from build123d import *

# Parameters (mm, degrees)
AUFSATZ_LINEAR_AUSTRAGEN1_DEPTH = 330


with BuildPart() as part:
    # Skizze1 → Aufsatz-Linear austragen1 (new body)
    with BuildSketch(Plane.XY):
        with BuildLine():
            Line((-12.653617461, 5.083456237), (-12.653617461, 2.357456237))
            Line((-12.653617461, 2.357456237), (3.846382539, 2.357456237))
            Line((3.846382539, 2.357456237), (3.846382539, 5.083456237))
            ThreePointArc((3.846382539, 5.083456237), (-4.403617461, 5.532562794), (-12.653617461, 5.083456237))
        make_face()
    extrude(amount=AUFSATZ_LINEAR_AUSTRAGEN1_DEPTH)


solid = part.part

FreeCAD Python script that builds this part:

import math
import FreeCAD as App
import Part
import Sketcher

V = App.Vector

doc = App.newDocument("Part")
body = doc.addObject("PartDesign::Body", "Body")

sketch1 = body.newObject("Sketcher::SketchObject", "Sketch")
sketch1.AttachmentSupport = (doc.getObject("XY_Plane"), [""])
sketch1.MapMode = "FlatFace"
sketch1.addGeometry(Part.LineSegment(V(-12.653617, 5.083456, 0), V(-12.653617, 2.357456, 0)), False)
sketch1.addGeometry(Part.LineSegment(V(-12.653617, 2.357456, 0), V(3.846383, 2.357456, 0)), False)
sketch1.addGeometry(Part.LineSegment(V(3.846383, 2.357456, 0), V(3.846383, 5.083456, 0)), False)
sketch1.addGeometry(Part.ArcOfCircle(Part.Circle(V(-4.403617, -70.467437, 0), V(0, 0, 1), 76), math.radians(83.768112), math.radians(96.231888)), False)
sketch1.addConstraint(Sketcher.Constraint("Coincident", 0, 2, 1, 1))
sketch1.addConstraint(Sketcher.Constraint("Coincident", 1, 2, 2, 1))
sketch1.addConstraint(Sketcher.Constraint("Coincident", 2, 2, 3, 1))
sketch1.addConstraint(Sketcher.Constraint("Coincident", 3, 2, 0, 1))
sketch1.addConstraint(Sketcher.Constraint("Vertical", 0))
sketch1.addConstraint(Sketcher.Constraint("Horizontal", 1))
sketch1.addConstraint(Sketcher.Constraint("Vertical", 2))
sketch1.addConstraint(Sketcher.Constraint("Horizontal", 2, 2, 3, 2))
sketch1.addConstraint(Sketcher.Constraint("Radius", 3, 76.0))
sketch1.addConstraint(Sketcher.Constraint("DistanceX", 1, 1, 1, 2, 16.5))
sketch1.addConstraint(Sketcher.Constraint("DistanceY", 0, 2, 0, 1, 2.726))
sketch1.addConstraint(Sketcher.Constraint("DistanceX", 3, 3, -1, 1, 4.403617))
sketch1.addConstraint(Sketcher.Constraint("DistanceY", 3, 3, -1, 1, 70.467437))
pad1 = body.newObject("PartDesign::Pad", "Pad")
pad1.Profile = sketch1
pad1.Length = 330

doc.recompute()
